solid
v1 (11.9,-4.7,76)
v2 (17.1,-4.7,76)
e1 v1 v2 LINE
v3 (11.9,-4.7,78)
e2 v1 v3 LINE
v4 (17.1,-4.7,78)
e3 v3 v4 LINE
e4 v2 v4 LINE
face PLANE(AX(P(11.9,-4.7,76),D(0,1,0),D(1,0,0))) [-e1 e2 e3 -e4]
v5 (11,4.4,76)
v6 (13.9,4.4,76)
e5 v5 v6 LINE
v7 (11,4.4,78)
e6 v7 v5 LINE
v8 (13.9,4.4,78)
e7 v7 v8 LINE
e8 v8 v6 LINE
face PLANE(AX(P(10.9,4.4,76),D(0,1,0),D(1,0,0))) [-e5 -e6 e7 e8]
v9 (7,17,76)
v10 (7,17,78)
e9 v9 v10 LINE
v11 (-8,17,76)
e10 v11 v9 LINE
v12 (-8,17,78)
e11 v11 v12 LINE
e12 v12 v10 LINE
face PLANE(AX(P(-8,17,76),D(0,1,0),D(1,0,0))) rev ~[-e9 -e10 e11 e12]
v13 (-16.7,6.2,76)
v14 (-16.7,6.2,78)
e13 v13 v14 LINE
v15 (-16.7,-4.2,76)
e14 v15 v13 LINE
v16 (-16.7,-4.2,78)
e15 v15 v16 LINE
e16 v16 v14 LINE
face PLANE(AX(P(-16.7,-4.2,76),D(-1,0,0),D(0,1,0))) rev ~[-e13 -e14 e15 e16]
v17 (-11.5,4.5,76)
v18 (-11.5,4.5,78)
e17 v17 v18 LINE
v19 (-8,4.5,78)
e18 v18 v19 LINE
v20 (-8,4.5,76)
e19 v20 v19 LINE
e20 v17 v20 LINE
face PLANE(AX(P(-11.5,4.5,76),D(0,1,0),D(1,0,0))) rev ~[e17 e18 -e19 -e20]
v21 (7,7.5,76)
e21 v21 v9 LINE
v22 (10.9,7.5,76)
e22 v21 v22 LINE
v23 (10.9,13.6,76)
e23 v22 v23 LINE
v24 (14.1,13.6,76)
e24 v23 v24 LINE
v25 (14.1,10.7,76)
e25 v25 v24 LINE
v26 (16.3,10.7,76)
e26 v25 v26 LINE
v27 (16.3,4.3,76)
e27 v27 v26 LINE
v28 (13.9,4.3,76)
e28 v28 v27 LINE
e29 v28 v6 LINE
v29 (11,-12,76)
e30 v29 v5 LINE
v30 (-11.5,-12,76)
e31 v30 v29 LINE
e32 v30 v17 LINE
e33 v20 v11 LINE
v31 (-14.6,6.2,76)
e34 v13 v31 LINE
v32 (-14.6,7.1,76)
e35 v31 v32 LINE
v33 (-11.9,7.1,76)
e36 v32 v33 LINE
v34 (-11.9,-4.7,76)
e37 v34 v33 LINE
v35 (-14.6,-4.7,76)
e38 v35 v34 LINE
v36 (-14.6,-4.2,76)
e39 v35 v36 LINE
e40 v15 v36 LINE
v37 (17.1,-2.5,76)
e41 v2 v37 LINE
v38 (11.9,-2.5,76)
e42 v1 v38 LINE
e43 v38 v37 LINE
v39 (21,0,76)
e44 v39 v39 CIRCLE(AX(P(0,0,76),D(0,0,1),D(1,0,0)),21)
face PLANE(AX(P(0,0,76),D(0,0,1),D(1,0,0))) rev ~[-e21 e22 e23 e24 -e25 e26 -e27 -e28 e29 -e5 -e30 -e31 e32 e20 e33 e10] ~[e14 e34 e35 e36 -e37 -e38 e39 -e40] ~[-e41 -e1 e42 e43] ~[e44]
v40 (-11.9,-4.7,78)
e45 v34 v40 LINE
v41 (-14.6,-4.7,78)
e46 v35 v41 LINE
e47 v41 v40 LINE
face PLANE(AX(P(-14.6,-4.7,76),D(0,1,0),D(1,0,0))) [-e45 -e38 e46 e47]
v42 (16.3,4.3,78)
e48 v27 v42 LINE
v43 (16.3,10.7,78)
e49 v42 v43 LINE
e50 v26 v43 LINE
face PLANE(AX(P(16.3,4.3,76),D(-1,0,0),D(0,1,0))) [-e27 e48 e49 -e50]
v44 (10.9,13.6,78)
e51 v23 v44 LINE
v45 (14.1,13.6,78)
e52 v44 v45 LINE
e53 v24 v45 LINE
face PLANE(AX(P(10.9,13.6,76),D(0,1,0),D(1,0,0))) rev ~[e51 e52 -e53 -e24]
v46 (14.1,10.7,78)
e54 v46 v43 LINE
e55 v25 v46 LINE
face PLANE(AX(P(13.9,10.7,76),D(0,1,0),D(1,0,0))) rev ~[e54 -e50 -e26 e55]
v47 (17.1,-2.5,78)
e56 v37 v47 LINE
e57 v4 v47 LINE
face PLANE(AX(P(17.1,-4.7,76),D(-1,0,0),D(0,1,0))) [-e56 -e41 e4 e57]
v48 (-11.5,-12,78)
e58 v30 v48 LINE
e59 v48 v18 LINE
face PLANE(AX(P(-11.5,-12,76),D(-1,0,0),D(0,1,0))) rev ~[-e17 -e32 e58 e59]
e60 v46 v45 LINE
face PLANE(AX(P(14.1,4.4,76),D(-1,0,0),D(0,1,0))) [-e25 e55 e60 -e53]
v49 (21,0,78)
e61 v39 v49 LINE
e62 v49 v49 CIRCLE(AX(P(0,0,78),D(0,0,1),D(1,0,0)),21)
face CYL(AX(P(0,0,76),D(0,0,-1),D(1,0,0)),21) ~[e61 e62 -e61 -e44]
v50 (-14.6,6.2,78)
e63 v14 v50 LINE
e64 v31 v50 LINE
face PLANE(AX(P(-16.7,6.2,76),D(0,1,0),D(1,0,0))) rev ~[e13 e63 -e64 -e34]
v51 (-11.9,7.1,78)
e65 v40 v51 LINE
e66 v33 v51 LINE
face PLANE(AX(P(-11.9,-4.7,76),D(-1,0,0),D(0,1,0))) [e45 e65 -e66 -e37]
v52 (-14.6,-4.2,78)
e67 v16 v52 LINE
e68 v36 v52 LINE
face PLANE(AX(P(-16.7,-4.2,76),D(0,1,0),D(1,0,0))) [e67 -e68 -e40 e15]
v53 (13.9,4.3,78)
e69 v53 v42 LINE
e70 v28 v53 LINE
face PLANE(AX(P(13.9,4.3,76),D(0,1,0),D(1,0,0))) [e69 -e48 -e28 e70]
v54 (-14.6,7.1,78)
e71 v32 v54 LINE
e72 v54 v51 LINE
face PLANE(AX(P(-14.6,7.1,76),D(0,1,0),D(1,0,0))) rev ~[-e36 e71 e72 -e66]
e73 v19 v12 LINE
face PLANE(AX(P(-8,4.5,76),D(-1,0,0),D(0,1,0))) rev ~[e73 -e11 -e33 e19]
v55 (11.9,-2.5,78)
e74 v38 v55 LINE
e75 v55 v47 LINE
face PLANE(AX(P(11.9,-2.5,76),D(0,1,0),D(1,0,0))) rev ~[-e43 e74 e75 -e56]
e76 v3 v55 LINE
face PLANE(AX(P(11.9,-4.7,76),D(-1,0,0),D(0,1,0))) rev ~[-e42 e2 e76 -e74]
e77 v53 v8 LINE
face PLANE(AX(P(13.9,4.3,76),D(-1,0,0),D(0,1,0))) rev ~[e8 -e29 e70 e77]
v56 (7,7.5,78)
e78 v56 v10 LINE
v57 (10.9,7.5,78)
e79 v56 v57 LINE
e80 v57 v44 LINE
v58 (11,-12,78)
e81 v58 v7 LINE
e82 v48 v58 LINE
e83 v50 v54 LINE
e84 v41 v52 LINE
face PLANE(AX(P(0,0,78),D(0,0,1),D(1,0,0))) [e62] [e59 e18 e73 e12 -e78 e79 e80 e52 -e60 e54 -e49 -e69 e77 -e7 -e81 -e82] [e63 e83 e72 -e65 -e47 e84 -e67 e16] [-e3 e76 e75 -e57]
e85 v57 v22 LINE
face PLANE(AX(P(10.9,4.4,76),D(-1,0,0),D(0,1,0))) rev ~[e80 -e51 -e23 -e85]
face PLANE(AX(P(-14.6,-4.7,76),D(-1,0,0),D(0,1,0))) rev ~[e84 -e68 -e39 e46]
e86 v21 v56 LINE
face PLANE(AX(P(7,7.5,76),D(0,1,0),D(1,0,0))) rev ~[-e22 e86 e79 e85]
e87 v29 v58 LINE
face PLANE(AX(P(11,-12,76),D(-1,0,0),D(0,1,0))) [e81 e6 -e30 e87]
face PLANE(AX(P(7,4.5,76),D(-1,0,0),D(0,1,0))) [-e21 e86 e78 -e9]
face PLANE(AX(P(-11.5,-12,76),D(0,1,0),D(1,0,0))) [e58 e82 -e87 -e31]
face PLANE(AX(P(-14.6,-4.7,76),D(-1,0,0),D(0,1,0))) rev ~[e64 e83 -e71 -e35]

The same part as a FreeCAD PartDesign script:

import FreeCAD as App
import Part
import Sketcher

V = App.Vector


def add_polygon(sketch, points):
    """Adds a closed chain of lines whose ends are joined by coincident constraints."""
    first, n = sketch.GeometryCount, len(points)
    for a, b in zip(points, points[1:] + points[:1]):
        sketch.addGeometry(Part.LineSegment(App.Vector(*a, 0), App.Vector(*b, 0)), False)
    for i in range(n):
        sketch.addConstraint(Sketcher.Constraint("Coincident", first + i, 2, first + (i + 1) % n, 1))

doc = App.newDocument("Part")
params = doc.addObject("Spreadsheet::Sheet", "Params")
for row, (alias, value) in enumerate([
    ("sketch1_width", "22.5 mm"),
    ("sketch1_height", "16.5 mm"),
    ("pad1_length", "2 mm"),
    ("sketch2_width", "15 mm"),
    ("sketch2_height", "12.5 mm"),
    ("pad2_length", "2 mm"),
    ("sketch3_width", "2.4 mm"),
    ("sketch3_height", "6.4 mm"),
    ("pad3_length", "2 mm"),
    ("sketch4_width", "3.2 mm"),
    ("sketch4_height", "9.2 mm"),
    ("pad4_length", "2 mm"),
    ("sketch5_width", "5.2 mm"),
    ("sketch5_height", "2.2 mm"),
    ("pad5_length", "2 mm"),
    ("sketch6_width", "2.7 mm"),
    ("sketch6_height", "11.8 mm"),
    ("pad6_length", "2 mm"),
    ("sketch7_width", "4 mm"),
    ("sketch7_height", "3 mm"),
    ("pad7_length", "2 mm"),
    ("sketch8_width", "2.2 mm"),
    ("sketch8_height", "10.4 mm"),
    ("pad8_length", "2 mm"),
    ("sketch9_diameter", "42 mm"),
    ("pad9_length", "2 mm"),
], start=1):
    params.set(f"A{row}", alias)
    params.set(f"B{row}", "=" + value)
    params.setAlias(f"B{row}", alias)

body = doc.addObject("PartDesign::Body", "Body")

# Sketch on XY plane
sketch1 = doc.addObject("Sketcher::SketchObject", "Sketch")
body.addObject(sketch1)
sketch1.AttachmentSupport = (doc.XY_Plane, [""])
sketch1.MapMode = "FlatFace"
sketch1.AttachmentOffset = App.Placement(V(0, 0, 76), App.Rotation())
add_polygon(sketch1, [(-11.5, 4.5), (-11.5, -12), (11, -12), (11, 4.5)])  # lines 0-3
sketch1.addConstraint([
    Sketcher.Constraint("Vertical", 0),
    Sketcher.Constraint("Horizontal", 1),
    Sketcher.Constraint("Vertical", 2),
    Sketcher.Constraint("Horizontal", 3),
    Sketcher.Constraint("DistanceX", 1, 1, 1, 2, 22.5),
    Sketcher.Constraint("DistanceY", 0, 2, 0, 1, 16.5),
    Sketcher.Constraint("DistanceY", 0, 2, -1, 1, 12.0),
    Sketcher.Constraint("DistanceX", -1, 1, 1, 2, 11.0),
])
sketch1.setExpression("Constraints[8]", "Params.sketch1_width")
sketch1.setExpression("Constraints[9]", "Params.sketch1_height")
pad1 = doc.addObject("PartDesign::Pad", "Pad")
body.addObject(pad1)
pad1.Profile = sketch1
pad1.setExpression("Length", "Params.pad1_length")
body2 = doc.addObject("PartDesign::Body", "Body001")

# Sketch on XY plane
sketch2 = doc.addObject("Sketcher::SketchObject", "Sketch001")
body2.addObject(sketch2)
sketch2.AttachmentSupport = (doc.getObject("XY_Plane001"), [""])
sketch2.MapMode = "FlatFace"
sketch2.AttachmentOffset = App.Placement(V(0, 0, 76), App.Rotation())
add_polygon(sketch2, [(-8, 17), (-8, 4.5), (7, 4.5), (7, 17)])  # lines 0-3
sketch2.addConstraint([
    Sketcher.Constraint("Vertical", 0),
    Sketcher.Constraint("Horizontal", 1),
    Sketcher.Constraint("Vertical", 2),
    Sketcher.Constraint("Horizontal", 3),
    Sketcher.Constraint("DistanceX", 1, 1, 1, 2, 15.0),
    Sketcher.Constraint("DistanceY", 0, 2, 0, 1, 12.5),
    Sketcher.Constraint("DistanceX", 0, 2, -1, 1, 8.0),
    Sketcher.Constraint("DistanceY", -1, 1, 2, 2, 17.0),
])
sketch2.setExpression("Constraints[8]", "Params.sketch2_width")
sketch2.setExpression("Constraints[9]", "Params.sketch2_height")
pad2 = doc.addObject("PartDesign::Pad", "Pad001")
body2.addObject(pad2)
pad2.Profile = sketch2
pad2.setExpression("Length", "Params.pad2_length")
body3 = doc.addObject("PartDesign::Body", "Body002")

# Sketch on XY plane
sketch3 = doc.addObject("Sketcher::SketchObject", "Sketch002")
body3.addObject(sketch3)
sketch3.AttachmentSupport = (doc.getObject("XY_Plane002"), [""])
sketch3.MapMode = "FlatFace"
sketch3.AttachmentOffset = App.Placement(V(0, 0, 76), App.Rotation())
add_polygon(sketch3, [(13.9, 10.7), (13.9, 4.3), (16.3, 4.3), (16.3, 10.7)])  # lines 0-3
sketch3.addConstraint([
    Sketcher.Constraint("Vertical", 0),
    Sketcher.Constraint("Horizontal", 1),
    Sketcher.Constraint("Vertical", 2),
    Sketcher.Constraint("Horizontal", 3),
    Sketcher.Constraint("DistanceX", 1, 1, 1, 2, 2.4),
    Sketcher.Constraint("DistanceY", 0, 2, 0, 1, 6.4),
    Sketcher.Constraint("DistanceX", -1, 1, 0, 2, 13.9),
    Sketcher.Constraint("DistanceY", -1, 1, 0, 2, 4.3),
])
sketch3.setExpression("Constraints[8]", "Params.sketch3_width")
sketch3.setExpression("Constraints[9]", "Params.sketch3_height")
pad3 = doc.addObject("PartDesign::Pad", "Pad002")
body3.addObject(pad3)
pad3.Profile = sketch3
pad3.setExpression("Length", "Params.pad3_length")
body4 = doc.addObject("PartDesign::Body", "Body003")

# Sketch on XY plane
sketch4 = doc.addObject("Sketcher::SketchObject", "Sketch003")
body4.addObject(sketch4)
sketch4.AttachmentSupport = (doc.getObject("XY_Plane003"), [""])
sketch4.MapMode = "FlatFace"
sketch4.AttachmentOffset = App.Placement(V(0, 0, 76), App.Rotation())
add_polygon(sketch4, [(10.9, 13.6), (10.9, 4.4), (14.1, 4.4), (14.1, 13.6)])  # lines 0-3
sketch4.addConstraint([
    Sketcher.Constraint("Vertical", 0),
    Sketcher.Constraint("Horizontal", 1),
    Sketcher.Constraint("Vertical", 2),
    Sketcher.Constraint("Horizontal", 3),
    Sketcher.Constraint("DistanceX", 1, 1, 1, 2, 3.2),
    Sketcher.Constraint("DistanceY", 0, 2, 0, 1, 9.2),
    Sketcher.Constraint("DistanceX", -1, 1, 0, 2, 10.9),
    Sketcher.Constraint("DistanceY", -1, 1, 0, 2, 4.4),
])
sketch4.setExpression("Constraints[8]", "Params.sketch4_width")
sketch4.setExpression("Constraints[9]", "Params.sketch4_height")
pad4 = doc.addObject("PartDesign::Pad", "Pad003")
body4.addObject(pad4)
pad4.Profile = sketch4
pad4.setExpression("Length", "Params.pad4_length")
body5 = doc.addObject("PartDesign::Body", "Body004")

# Sketch on XY plane
sketch5 = doc.addObject("Sketcher::SketchObject", "Sketch004")
body5.addObject(sketch5)
sketch5.AttachmentSupport = (doc.getObject("XY_Plane004"), [""])
sketch5.MapMode = "FlatFace"
sketch5.AttachmentOffset = App.Placement(V(0, 0, 76), App.Rotation())
add_polygon(sketch5, [(11.9, -2.5), (11.9, -4.7), (17.1, -4.7), (17.1, -2.5)])  # lines 0-3
sketch5.addConstraint([
    Sketcher.Constraint("Vertical", 0),
    Sketcher.Constraint("Horizontal", 1),
    Sketcher.Constraint("Vertical", 2),
    Sketcher.Constraint("Horizontal", 3),
    Sketcher.Constraint("DistanceX", 1, 1, 1, 2, 5.2),
    Sketcher.Constraint("DistanceY", 0, 2, 0, 1, 2.2),
    Sketcher.Constraint("DistanceX", -1, 1, 0, 2, 11.9),
    Sketcher.Constraint("DistanceY", 0, 2, -1, 1, 4.7),
])
sketch5.setExpression("Constraints[8]", "Params.sketch5_width")
sketch5.setExpression("Constraints[9]", "Params.sketch5_height")
pad5 = doc.addObject("PartDesign::Pad", "Pad004")
body5.addObject(pad5)
pad5.Profile = sketch5
pad5.setExpression("Length", "Params.pad5_length")
body6 = doc.addObject("PartDesign::Body", "Body005")

# Sketch on XY plane
sketch6 = doc.addObject("Sketcher::SketchObject", "Sketch005")
body6.addObject(sketch6)
sketch6.AttachmentSupport = (doc.getObject("XY_Plane005"), [""])
sketch6.MapMode = "FlatFace"
sketch6.AttachmentOffset = App.Placement(V(0, 0, 76), App.Rotation())
add_polygon(sketch6, [(-14.6, 7.1), (-14.6, -4.7), (-11.9, -4.7), (-11.9, 7.1)])  # lines 0-3
sketch6.addConstraint([
    Sketcher.Constraint("Vertical", 0),
    Sketcher.Constraint("Horizontal", 1),
    Sketcher.Constraint("Vertical", 2),
    Sketcher.Constraint("Horizontal", 3),
    Sketcher.Constraint("DistanceX", 1, 1, 1, 2, 2.7),
    Sketcher.Constraint("DistanceY", 0, 2, 0, 1, 11.8),
    Sketcher.Constraint("DistanceX", 0, 2, -1, 1, 14.6),
    Sketcher.Constraint("DistanceY", 0, 2, -1, 1, 4.7),
])
sketch6.setExpression("Constraints[8]", "Params.sketch6_width")
sketch6.setExpression("Constraints[9]", "Params.sketch6_height")
pad6 = doc.addObject("PartDesign::Pad", "Pad005")
body6.addObject(pad6)
pad6.Profile = sketch6
pad6.setExpression("Length", "Params.pad6_length")
body7 = doc.addObject("PartDesign::Body", "Body006")

# Sketch on XY plane
sketch7 = doc.addObject("Sketcher::SketchObject", "Sketch006")
body7.addObject(sketch7)
sketch7.AttachmentSupport = (doc.getObject("XY_Plane006"), [""])
sketch7.MapMode = "FlatFace"
sketch7.AttachmentOffset = App.Placement(V(0, 0, 76), App.Rotation())
add_polygon(sketch7, [(7, 7.5), (7, 4.5), (11, 4.5), (11, 7.5)])  # lines 0-3
sketch7.addConstraint([
    Sketcher.Constraint("Vertical", 0),
    Sketcher.Constraint("Horizontal", 1),
    Sketcher.Constraint("Vertical", 2),
    Sketcher.Constraint("Horizontal", 3),
    Sketcher.Constraint("DistanceX", 1, 1, 1, 2, 4.0),
    Sketcher.Constraint("DistanceY", 0, 2, 0, 1, 3.0),
    Sketcher.Constraint("DistanceX", -1, 1, 0, 2, 7.0),
    Sketcher.Constraint("DistanceY", -1, 1, 0, 2, 4.5),
])
sketch7.setExpression("Constraints[8]", "Params.sketch7_width")
sketch7.setExpression("Constraints[9]", "Params.sketch7_height")
pad7 = doc.addObject("PartDesign::Pad", "Pad006")
body7.addObject(pad7)
pad7.Profile = sketch7
pad7.setExpression("Length", "Params.pad7_length")
body8 = doc.addObject("PartDesign::Body", "Body007")
body8.AllowCompound = True

# Sketch on XY plane
sketch8 = doc.addObject("Sketcher::SketchObject", "Sketch007")
body8.addObject(sketch8)
sketch8.AttachmentSupport = (doc.getObject("XY_Plane007"), [""])
sketch8.MapMode = "FlatFace"
sketch8.AttachmentOffset = App.Placement(V(0, 0, 76), App.Rotation())
add_polygon(sketch8, [(-16.7, 6.2), (-16.7, -4.2), (-14.5, -4.2), (-14.5, 6.2)])  # lines 0-3
sketch8.addConstraint([
    Sketcher.Constraint("Vertical", 0),
    Sketcher.Constraint("Horizontal", 1),
    Sketcher.Constraint("Vertical", 2),
    Sketcher.Constraint("Horizontal", 3),
    Sketcher.Constraint("DistanceX", 1, 1, 1, 2, 2.2),
    Sketcher.Constraint("DistanceY", 0, 2, 0, 1, 10.4),
    Sketcher.Constraint("DistanceX", 0, 2, -1, 1, 16.7),
    Sketcher.Constraint("DistanceY", 0, 2, -1, 1, 4.2),
])
sketch8.setExpression("Constraints[8]", "Params.sketch8_width")
sketch8.setExpression("Constraints[9]", "Params.sketch8_height")
pad8 = doc.addObject("PartDesign::Pad", "Pad007")
body8.addObject(pad8)
pad8.Profile = sketch8
pad8.setExpression("Length", "Params.pad8_length")
doc.recompute()

boolean = doc.addObject("PartDesign::Boolean", "Boolean")
body8.addObject(boolean)
boolean.Type = "Fuse"
boolean.addObjects([body])
doc.recompute()

boolean2 = doc.addObject("PartDesign::Boolean", "Boolean001")
body8.addObject(boolean2)
boolean2.Type = "Fuse"
boolean2.addObjects([body2])
doc.recompute()

boolean3 = doc.addObject("PartDesign::Boolean", "Boolean002")
body8.addObject(boolean3)
boolean3.Type = "Fuse"
boolean3.addObjects([body3])
doc.recompute()

boolean4 = doc.addObject("PartDesign::Boolean", "Boolean003")
body8.addObject(boolean4)
boolean4.Type = "Fuse"
boolean4.addObjects([body4])
doc.recompute()

boolean5 = doc.addObject("PartDesign::Boolean", "Boolean004")
body8.addObject(boolean5)
boolean5.Type = "Fuse"
boolean5.addObjects([body5])
doc.recompute()

boolean6 = doc.addObject("PartDesign::Boolean", "Boolean005")
body8.addObject(boolean6)
boolean6.Type = "Fuse"
boolean6.addObjects([body6])
doc.recompute()

boolean7 = doc.addObject("PartDesign::Boolean", "Boolean006")
body8.addObject(boolean7)
boolean7.Type = "Fuse"
boolean7.addObjects([body7])
body9 = doc.addObject("PartDesign::Body", "Body008")

# Sketch on XY plane
sketch9 = doc.addObject("Sketcher::SketchObject", "Sketch008")
body9.addObject(sketch9)
sketch9.AttachmentSupport = (doc.getObject("XY_Plane008"), [""])
sketch9.MapMode = "FlatFace"
sketch9.AttachmentOffset = App.Placement(V(0, 0, 76), App.Rotation())
sketch9.addGeometry(Part.Circle(V(0, 0, 0), V(0, 0, 1), 21), False)
sketch9.addConstraint([
    Sketcher.Constraint("Coincident", 0, 3, -1, 1),
    Sketcher.Constraint("Diameter", 0, 42.0),
])
sketch9.setExpression("Constraints[1]", "Params.sketch9_diameter")
pad9 = doc.addObject("PartDesign::Pad", "Pad008")
body9.addObject(pad9)
pad9.Profile = sketch9
pad9.setExpression("Length", "Params.pad9_length")
doc.recompute()

boolean8 = doc.addObject("PartDesign::Boolean", "Boolean007")
body9.addObject(boolean8)
boolean8.Type = "Cut"
boolean8.addObjects([body8])

doc.recompute()
